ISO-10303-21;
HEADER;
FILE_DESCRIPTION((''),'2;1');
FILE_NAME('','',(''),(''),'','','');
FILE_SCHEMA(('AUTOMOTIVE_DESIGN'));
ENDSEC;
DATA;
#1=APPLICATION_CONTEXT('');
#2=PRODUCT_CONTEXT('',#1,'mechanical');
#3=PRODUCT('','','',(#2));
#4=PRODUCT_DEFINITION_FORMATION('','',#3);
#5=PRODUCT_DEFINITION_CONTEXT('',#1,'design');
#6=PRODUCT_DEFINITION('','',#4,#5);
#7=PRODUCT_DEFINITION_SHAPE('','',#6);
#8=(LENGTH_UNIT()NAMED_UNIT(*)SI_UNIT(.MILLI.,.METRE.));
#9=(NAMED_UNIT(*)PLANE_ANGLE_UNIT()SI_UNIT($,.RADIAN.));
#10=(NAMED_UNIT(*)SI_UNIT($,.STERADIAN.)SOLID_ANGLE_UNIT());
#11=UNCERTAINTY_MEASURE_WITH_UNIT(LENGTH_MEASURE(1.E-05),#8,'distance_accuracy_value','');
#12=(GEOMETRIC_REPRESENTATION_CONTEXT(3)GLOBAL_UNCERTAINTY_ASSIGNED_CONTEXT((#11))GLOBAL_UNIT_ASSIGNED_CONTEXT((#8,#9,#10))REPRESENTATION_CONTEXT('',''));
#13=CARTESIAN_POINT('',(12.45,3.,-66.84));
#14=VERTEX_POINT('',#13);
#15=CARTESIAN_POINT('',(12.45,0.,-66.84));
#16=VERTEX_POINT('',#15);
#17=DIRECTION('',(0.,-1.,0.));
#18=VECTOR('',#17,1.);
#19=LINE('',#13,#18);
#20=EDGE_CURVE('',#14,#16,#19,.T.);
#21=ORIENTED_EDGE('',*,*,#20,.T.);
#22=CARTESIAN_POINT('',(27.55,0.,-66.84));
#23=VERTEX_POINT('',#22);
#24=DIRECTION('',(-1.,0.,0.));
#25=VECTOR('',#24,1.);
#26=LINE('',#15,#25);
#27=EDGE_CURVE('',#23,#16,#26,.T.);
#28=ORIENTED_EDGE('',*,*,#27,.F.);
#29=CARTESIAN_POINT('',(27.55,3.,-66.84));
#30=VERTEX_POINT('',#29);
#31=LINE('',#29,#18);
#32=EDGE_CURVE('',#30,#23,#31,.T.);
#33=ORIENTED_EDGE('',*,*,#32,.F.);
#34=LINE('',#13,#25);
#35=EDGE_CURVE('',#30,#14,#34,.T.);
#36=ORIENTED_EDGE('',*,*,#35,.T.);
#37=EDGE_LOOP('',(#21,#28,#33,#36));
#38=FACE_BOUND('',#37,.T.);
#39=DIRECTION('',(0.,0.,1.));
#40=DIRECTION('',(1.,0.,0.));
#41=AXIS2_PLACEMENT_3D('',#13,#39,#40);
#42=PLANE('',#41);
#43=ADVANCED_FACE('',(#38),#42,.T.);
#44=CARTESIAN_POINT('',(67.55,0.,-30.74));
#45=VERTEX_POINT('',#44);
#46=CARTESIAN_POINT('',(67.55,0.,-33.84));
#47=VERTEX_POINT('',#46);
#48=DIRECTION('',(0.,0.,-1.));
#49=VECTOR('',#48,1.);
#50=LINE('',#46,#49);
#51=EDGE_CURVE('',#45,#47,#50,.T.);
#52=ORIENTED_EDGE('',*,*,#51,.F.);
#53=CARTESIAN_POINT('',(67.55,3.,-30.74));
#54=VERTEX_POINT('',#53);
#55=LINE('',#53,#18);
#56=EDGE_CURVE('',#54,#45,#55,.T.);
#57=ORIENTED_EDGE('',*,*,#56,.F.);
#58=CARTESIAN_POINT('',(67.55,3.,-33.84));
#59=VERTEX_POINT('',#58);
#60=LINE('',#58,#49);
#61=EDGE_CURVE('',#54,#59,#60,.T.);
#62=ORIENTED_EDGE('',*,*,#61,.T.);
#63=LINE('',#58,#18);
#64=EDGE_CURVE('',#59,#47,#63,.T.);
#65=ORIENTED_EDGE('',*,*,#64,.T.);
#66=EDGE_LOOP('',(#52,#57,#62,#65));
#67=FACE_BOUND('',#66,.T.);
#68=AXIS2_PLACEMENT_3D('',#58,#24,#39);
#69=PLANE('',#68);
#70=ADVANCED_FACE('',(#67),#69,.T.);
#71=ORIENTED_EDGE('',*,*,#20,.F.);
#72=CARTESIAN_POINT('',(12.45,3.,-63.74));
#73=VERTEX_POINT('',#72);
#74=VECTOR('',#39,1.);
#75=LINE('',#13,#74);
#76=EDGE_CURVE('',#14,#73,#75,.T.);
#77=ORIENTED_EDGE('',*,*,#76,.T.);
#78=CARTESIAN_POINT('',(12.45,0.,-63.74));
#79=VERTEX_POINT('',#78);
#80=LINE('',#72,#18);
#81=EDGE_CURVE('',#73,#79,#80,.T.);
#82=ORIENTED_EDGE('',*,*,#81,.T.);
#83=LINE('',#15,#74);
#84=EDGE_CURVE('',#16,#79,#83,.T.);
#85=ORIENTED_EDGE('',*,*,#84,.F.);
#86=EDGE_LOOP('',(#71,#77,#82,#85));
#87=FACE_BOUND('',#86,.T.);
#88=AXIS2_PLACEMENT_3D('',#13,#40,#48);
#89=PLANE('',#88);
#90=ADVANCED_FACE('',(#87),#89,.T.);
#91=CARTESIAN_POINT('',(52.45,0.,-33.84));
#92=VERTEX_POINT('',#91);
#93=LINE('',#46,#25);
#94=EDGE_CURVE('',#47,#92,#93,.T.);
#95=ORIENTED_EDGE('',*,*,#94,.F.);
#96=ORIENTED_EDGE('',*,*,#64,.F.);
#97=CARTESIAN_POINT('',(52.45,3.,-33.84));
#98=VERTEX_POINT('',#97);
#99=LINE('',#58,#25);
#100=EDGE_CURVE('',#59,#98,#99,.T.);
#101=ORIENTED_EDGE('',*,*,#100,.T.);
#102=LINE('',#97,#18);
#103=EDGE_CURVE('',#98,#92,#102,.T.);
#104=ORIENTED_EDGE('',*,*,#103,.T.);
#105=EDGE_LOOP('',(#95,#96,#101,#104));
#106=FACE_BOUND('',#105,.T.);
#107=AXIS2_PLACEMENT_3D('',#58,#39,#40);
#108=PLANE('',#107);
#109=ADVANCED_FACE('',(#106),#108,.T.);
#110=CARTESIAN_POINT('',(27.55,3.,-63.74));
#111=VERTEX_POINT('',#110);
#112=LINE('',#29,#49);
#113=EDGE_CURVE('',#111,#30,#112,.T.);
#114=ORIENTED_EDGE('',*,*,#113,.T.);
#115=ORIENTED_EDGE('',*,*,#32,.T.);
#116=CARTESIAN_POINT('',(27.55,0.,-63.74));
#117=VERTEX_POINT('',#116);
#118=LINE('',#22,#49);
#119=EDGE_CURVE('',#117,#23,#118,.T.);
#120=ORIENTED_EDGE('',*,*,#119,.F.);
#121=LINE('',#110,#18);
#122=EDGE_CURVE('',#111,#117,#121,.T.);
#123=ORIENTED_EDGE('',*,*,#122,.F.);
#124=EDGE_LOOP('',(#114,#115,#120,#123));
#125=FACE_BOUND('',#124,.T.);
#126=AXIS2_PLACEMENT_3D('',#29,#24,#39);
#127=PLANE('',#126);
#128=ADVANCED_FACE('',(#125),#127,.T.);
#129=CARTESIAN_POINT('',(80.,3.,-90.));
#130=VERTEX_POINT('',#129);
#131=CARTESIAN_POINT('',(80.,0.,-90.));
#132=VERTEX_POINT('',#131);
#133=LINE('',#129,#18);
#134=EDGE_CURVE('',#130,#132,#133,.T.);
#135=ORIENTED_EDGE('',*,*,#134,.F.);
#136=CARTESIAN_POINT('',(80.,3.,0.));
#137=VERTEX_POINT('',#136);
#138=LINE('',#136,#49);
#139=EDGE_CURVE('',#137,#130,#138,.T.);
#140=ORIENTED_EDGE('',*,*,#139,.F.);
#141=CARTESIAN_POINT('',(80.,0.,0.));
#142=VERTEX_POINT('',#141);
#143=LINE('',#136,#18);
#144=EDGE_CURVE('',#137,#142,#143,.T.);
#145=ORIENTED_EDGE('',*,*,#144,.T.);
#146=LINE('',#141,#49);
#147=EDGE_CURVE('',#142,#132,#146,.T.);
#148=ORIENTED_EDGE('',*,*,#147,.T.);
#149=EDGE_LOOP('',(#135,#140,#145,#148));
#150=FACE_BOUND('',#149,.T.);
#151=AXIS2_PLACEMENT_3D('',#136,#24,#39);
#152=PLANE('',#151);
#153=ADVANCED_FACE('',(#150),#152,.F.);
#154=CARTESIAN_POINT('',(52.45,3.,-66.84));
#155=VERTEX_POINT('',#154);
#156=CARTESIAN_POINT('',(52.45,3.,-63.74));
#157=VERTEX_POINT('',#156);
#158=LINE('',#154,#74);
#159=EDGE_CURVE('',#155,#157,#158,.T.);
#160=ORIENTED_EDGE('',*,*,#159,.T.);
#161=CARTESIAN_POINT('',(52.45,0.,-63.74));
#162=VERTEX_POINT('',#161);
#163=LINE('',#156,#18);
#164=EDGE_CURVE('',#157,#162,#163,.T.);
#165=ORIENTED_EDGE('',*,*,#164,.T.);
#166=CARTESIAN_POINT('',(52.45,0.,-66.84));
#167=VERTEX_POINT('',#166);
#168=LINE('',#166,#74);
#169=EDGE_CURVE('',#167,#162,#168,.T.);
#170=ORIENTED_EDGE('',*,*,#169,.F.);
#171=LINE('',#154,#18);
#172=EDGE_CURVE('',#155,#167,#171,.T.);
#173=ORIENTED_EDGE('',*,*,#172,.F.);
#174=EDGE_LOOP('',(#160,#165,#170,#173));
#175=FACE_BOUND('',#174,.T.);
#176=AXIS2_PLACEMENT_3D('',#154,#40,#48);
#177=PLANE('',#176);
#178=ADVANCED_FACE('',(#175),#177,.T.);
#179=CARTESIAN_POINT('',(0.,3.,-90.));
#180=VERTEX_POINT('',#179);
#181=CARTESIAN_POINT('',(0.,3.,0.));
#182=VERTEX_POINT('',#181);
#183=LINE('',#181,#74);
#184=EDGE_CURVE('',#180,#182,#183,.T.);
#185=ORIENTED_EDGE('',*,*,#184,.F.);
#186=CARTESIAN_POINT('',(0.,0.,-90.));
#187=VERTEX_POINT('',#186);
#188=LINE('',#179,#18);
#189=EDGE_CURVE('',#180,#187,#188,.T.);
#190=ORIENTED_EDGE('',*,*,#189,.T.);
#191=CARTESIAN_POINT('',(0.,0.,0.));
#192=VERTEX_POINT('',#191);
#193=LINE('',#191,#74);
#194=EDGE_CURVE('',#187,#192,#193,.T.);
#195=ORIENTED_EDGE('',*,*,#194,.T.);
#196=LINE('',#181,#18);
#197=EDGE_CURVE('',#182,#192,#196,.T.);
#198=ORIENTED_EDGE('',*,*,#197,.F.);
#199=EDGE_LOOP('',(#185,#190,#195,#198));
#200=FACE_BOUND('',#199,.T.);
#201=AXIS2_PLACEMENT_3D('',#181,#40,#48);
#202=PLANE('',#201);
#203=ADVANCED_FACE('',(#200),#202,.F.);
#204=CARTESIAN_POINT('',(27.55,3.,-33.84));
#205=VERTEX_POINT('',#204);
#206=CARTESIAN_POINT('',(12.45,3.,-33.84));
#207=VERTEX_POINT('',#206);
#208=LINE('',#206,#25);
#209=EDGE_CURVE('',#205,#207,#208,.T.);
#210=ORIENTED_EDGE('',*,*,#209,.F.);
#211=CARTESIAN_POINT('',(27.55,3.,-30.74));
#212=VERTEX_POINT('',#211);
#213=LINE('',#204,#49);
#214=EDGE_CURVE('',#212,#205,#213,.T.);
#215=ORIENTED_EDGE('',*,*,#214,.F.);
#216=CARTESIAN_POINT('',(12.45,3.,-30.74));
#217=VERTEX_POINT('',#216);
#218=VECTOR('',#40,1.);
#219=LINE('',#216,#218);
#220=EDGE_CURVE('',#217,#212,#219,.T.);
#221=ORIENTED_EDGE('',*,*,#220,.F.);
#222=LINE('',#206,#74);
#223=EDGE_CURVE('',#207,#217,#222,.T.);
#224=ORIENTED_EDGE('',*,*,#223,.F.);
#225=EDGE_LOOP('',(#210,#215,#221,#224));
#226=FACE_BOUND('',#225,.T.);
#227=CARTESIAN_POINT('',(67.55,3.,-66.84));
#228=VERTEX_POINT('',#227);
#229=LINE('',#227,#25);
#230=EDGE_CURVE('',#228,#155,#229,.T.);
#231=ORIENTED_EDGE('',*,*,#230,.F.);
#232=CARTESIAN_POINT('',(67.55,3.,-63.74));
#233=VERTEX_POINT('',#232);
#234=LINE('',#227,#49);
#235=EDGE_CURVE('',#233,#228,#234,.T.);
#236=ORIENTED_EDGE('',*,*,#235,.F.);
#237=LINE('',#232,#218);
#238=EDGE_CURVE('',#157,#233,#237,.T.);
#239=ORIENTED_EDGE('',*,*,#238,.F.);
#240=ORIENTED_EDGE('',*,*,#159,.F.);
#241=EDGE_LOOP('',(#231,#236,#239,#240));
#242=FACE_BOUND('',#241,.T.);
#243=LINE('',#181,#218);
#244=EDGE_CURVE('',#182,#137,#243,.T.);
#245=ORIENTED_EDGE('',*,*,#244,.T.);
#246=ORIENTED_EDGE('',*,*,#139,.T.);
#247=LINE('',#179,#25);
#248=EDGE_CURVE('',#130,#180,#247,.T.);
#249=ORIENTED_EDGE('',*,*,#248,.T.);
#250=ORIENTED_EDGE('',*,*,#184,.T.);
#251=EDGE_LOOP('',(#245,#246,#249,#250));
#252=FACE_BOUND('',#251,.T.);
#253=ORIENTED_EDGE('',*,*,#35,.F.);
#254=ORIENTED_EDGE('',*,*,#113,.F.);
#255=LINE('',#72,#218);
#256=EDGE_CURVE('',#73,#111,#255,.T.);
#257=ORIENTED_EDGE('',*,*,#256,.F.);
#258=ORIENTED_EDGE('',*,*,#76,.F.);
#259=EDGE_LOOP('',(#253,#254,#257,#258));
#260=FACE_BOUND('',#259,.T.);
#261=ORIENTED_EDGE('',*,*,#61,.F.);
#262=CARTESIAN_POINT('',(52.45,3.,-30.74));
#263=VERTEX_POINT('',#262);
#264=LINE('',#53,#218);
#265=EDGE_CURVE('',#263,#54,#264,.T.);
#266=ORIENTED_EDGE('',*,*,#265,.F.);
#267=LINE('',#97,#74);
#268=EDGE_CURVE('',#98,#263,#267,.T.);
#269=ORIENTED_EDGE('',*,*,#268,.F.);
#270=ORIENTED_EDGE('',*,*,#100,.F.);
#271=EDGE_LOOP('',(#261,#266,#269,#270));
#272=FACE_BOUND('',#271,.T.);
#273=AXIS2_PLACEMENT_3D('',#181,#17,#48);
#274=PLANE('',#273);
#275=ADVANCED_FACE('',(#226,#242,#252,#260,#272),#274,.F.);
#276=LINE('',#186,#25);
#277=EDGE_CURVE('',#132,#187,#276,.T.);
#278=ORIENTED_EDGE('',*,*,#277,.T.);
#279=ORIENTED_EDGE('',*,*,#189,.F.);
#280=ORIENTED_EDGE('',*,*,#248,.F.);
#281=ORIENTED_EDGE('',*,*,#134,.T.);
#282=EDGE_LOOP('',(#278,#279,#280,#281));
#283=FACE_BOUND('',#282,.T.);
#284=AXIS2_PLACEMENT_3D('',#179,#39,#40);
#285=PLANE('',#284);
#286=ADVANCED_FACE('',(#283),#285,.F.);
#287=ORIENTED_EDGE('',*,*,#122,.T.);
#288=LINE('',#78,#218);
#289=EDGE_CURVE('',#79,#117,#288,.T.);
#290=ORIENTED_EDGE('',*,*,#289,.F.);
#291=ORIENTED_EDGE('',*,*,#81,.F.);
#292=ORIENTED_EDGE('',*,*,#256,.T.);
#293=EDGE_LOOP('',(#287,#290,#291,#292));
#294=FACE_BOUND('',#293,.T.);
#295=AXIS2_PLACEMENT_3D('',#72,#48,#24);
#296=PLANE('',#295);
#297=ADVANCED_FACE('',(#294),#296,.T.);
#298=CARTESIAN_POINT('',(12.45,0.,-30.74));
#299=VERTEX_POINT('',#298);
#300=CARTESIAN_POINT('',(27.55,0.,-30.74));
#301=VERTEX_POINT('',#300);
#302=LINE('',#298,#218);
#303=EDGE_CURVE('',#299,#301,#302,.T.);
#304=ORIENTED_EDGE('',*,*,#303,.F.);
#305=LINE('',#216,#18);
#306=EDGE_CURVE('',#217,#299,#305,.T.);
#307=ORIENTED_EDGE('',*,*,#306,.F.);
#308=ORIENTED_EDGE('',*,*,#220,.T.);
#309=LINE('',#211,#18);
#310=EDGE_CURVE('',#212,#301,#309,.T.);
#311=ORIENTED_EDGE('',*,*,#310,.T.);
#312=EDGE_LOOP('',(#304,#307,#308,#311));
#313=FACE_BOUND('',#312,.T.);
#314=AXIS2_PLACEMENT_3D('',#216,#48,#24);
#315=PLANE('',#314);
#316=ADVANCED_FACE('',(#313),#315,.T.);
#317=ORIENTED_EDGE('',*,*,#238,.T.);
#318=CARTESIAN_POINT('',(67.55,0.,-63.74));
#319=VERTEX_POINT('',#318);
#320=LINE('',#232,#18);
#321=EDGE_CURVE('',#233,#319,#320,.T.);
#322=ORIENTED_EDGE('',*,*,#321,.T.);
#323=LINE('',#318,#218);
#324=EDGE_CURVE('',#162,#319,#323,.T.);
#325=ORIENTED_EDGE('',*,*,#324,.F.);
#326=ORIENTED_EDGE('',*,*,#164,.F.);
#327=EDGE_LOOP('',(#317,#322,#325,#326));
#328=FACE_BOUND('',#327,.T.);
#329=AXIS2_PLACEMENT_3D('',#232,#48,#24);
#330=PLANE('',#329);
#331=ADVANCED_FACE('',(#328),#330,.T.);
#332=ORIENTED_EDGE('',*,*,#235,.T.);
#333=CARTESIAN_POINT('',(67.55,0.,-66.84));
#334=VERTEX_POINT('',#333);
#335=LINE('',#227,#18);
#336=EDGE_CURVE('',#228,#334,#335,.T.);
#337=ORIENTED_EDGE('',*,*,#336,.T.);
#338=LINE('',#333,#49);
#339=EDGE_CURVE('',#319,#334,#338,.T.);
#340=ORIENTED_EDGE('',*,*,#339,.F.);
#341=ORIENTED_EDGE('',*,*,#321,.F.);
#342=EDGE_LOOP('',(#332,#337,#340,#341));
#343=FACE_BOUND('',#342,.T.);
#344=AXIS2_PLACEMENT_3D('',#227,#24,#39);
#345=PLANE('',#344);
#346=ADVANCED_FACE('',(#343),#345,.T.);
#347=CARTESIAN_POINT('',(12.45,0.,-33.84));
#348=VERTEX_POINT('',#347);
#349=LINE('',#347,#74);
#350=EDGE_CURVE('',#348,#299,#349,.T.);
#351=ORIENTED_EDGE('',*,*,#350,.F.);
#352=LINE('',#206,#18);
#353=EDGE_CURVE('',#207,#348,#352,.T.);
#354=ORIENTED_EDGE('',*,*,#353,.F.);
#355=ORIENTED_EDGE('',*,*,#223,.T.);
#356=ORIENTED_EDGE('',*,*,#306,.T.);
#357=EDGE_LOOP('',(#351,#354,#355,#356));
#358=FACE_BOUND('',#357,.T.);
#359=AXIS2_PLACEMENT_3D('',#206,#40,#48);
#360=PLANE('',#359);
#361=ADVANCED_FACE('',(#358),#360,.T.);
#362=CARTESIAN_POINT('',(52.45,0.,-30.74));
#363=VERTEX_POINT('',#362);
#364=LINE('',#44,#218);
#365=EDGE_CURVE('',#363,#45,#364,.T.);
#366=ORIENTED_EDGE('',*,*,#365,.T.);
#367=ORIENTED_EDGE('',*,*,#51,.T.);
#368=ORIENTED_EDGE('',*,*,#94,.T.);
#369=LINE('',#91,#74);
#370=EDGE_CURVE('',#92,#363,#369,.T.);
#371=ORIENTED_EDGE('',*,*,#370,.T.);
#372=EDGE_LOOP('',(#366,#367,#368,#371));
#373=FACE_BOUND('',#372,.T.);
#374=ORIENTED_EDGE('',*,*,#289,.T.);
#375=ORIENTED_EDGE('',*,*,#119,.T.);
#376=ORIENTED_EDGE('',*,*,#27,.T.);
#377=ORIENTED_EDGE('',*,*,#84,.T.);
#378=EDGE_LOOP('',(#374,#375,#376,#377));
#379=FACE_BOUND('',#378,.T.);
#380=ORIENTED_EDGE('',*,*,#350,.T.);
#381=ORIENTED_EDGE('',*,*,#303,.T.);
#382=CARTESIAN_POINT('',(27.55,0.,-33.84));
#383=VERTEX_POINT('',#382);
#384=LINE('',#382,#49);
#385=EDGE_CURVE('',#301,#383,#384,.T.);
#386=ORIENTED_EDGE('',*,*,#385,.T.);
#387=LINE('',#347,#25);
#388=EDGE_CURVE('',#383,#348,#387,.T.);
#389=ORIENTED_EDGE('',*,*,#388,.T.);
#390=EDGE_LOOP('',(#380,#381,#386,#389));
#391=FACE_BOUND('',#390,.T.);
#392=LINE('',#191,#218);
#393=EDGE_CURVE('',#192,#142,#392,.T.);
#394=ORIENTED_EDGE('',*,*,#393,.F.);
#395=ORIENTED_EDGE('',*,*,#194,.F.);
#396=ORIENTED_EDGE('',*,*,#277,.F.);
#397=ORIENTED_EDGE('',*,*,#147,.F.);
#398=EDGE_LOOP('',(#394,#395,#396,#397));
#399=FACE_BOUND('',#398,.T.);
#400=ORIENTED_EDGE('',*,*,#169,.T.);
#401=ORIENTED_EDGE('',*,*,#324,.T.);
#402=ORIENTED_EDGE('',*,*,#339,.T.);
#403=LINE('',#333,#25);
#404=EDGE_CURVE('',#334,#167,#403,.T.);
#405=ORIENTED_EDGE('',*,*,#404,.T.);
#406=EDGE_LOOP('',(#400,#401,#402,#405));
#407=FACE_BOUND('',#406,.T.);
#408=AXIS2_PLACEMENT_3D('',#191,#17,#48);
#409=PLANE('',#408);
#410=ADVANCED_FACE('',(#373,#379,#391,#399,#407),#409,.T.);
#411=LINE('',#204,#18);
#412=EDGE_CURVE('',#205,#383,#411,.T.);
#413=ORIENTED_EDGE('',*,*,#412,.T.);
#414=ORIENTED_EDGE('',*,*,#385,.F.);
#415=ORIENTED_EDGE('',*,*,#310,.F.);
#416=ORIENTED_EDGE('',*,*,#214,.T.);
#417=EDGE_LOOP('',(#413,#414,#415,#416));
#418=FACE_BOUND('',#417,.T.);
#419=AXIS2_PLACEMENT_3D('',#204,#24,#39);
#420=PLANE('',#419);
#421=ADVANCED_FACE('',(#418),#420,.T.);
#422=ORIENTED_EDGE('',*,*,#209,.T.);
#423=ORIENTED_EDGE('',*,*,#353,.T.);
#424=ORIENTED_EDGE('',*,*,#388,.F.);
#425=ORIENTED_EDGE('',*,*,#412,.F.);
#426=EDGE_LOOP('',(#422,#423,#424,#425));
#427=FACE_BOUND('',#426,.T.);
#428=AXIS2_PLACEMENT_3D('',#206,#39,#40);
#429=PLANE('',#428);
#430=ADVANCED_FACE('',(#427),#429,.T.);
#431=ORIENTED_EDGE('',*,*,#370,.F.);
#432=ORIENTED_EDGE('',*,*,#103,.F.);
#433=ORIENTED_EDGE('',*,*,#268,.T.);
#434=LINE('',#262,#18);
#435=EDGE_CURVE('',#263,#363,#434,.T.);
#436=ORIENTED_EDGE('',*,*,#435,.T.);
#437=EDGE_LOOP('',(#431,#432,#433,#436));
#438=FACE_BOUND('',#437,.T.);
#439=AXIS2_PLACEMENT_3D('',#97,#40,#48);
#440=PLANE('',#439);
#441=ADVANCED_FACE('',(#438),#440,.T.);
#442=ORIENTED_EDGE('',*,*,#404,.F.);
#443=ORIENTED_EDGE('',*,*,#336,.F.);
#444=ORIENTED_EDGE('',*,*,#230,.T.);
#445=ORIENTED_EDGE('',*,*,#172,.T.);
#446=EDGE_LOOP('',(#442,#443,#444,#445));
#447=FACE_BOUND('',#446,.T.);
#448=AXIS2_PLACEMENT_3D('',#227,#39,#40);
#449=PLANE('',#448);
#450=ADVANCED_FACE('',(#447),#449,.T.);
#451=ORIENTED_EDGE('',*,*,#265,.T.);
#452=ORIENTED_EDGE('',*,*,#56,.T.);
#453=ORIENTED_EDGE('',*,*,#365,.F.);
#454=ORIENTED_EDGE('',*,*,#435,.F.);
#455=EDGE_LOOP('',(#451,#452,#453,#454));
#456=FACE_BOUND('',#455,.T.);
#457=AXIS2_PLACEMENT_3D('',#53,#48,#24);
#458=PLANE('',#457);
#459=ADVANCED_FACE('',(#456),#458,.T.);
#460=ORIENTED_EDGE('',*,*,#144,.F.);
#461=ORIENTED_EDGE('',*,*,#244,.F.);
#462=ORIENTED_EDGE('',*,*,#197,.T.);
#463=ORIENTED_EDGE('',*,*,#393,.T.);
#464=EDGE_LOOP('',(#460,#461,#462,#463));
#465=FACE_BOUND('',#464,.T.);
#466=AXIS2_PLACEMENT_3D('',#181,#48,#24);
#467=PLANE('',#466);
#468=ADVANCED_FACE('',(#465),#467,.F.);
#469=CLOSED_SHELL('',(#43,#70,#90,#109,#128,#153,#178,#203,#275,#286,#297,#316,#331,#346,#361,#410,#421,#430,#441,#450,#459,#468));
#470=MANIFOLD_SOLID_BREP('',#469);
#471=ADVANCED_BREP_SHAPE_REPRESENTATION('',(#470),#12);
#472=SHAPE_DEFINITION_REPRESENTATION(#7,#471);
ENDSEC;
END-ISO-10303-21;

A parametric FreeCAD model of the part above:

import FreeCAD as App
import Part
import Sketcher

V = App.Vector


def add_polygon(sketch, points):
    """Adds a closed chain of lines whose ends are joined by coincident constraints."""
    first, n = sketch.GeometryCount, len(points)
    for a, b in zip(points, points[1:] + points[:1]):
        sketch.addGeometry(Part.LineSegment(App.Vector(*a, 0), App.Vector(*b, 0)), False)
    for i in range(n):
        sketch.addConstraint(Sketcher.Constraint("Coincident", first + i, 2, first + (i + 1) % n, 1))

doc = App.newDocument("Part")
params = doc.addObject("Spreadsheet::Sheet", "Params")
for row, (alias, value) in enumerate([
    ("sketch1_width", "80 mm"),
    ("sketch1_height", "90 mm"),
    ("sketch1_width2", "15.1 mm"),
    ("sketch1_height2", "3.1 mm"),
    ("pad1_length", "3 mm"),
], start=1):
    params.set(f"A{row}", alias)
    params.set(f"B{row}", "=" + value)
    params.setAlias(f"B{row}", alias)

body = doc.addObject("PartDesign::Body", "Body")

# Sketch on XZ plane
sketch1 = body.newObject("Sketcher::SketchObject", "Sketch")
sketch1.AttachmentSupport = (doc.getObject("XZ_Plane"), [""])
sketch1.MapMode = "FlatFace"
add_polygon(sketch1, [(0, -90), (0, 0), (80, 0), (80, -90)])  # lines 0-3
add_polygon(sketch1, [(27.6, -30.7), (12.4, -30.7), (12.4, -33.8), (27.6, -33.8)])  # lines 4-7
add_polygon(sketch1, [(67.5, -30.7), (52.5, -30.7), (52.5, -33.8), (67.5, -33.8)])  # lines 8-11
add_polygon(sketch1, [(27.6, -63.7), (12.4, -63.7), (12.4, -66.8), (27.6, -66.8)])  # lines 12-15
add_polygon(sketch1, [(67.5, -63.7), (52.5, -63.7), (52.5, -66.8), (67.5, -66.8)])  # lines 16-19
sketch1.addConstraint([
    Sketcher.Constraint("Vertical", 0),
    Sketcher.Constraint("Horizontal", 1),
    Sketcher.Constraint("Vertical", 2),
    Sketcher.Constraint("Horizontal", 3),
    Sketcher.Constraint("Horizontal", 4),
    Sketcher.Constraint("Vertical", 5),
    Sketcher.Constraint("Horizontal", 6),
    Sketcher.Constraint("Vertical", 7),
    Sketcher.Constraint("Horizontal", 8),
    Sketcher.Constraint("Vertical", 9),
    Sketcher.Constraint("Horizontal", 10),
    Sketcher.Constraint("Vertical", 11),
    Sketcher.Constraint("Horizontal", 12),
    Sketcher.Constraint("Vertical", 13),
    Sketcher.Constraint("Horizontal", 14),
    Sketcher.Constraint("Vertical", 15),
    Sketcher.Constraint("Horizontal", 16),
    Sketcher.Constraint("Vertical", 17),
    Sketcher.Constraint("Horizontal", 18),
    Sketcher.Constraint("Vertical", 19),
    Sketcher.Constraint("Coincident", 0, 2, -1, 1),
    Sketcher.Constraint("Horizontal", 7, 2, 8, 2),
    Sketcher.Constraint("Horizontal", 6, 2, 9, 2),
    Sketcher.Constraint("Horizontal", 15, 2, 16, 2),
    Sketcher.Constraint("Horizontal", 14, 2, 17, 2),
    Sketcher.Constraint("Vertical", 5, 2, 12, 2),
    Sketcher.Constraint("Vertical", 7, 2, 14, 2),
    Sketcher.Constraint("Vertical", 9, 2, 16, 2),
    Sketcher.Constraint("Vertical", 11, 2, 18, 2),
    Sketcher.Constraint("Equal", 6, 8),
    Sketcher.Constraint("Equal", 11, 13),
    Sketcher.Constraint("DistanceX", 1, 1, 1, 2, 80.0),
    Sketcher.Constraint("DistanceY", 0, 1, 0, 2, 90.0),
    Sketcher.Constraint("DistanceX", 4, 2, 4, 1, 15.1),
    Sketcher.Constraint("DistanceY", 5, 2, 5, 1, 3.1),
    Sketcher.Constraint("DistanceX", 4, 2, 8, 2, 40.0),
    Sketcher.Constraint("DistanceY", 12, 2, 4, 2, 33.0),
    Sketcher.Constraint("DistanceX", -1, 1, 4, 2, 12.45),
    Sketcher.Constraint("DistanceY", 4, 2, -1, 1, 30.74),
])
sketch1.setExpression("Constraints[51]", "Params.sketch1_width")
sketch1.setExpression("Constraints[52]", "Params.sketch1_height")
sketch1.setExpression("Constraints[53]", "Params.sketch1_width2")
sketch1.setExpression("Constraints[54]", "Params.sketch1_height2")
pad1 = body.newObject("PartDesign::Pad", "Pad")
pad1.Profile = sketch1
pad1.setExpression("Length", "Params.pad1_length")
pad1.Reversed = True

doc.recompute()
